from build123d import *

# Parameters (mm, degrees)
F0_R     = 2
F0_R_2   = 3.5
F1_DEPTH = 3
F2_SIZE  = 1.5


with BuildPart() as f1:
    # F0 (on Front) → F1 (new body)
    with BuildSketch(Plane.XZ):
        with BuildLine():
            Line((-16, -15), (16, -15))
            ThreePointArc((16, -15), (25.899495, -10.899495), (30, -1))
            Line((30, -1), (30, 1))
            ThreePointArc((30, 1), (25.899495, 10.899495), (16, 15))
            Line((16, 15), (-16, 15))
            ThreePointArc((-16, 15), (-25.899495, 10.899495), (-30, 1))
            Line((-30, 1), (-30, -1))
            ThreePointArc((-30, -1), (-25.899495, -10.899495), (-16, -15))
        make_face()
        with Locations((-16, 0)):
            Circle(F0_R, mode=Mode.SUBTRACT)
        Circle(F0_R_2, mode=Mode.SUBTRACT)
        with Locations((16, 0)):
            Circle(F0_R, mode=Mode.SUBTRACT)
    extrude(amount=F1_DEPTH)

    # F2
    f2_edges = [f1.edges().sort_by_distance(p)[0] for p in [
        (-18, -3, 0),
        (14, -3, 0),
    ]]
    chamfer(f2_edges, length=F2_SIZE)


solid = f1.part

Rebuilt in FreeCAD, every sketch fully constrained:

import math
import FreeCAD as App
import Part
import Sketcher

V = App.Vector


def edges_at(feature, points):
    """Names of the edges that pass closest to the given points."""
    edges = feature.Shape.Edges
    near = lambda p: min(range(len(edges)), key=lambda i: edges[i].distToShape(Part.Vertex(*p))[0])
    return sorted({f"Edge{near(p) + 1}" for p in points})

doc = App.newDocument("Part")
body = doc.addObject("PartDesign::Body", "Body")

# Sketch on XZ plane
sketch1 = body.newObject("Sketcher::SketchObject", "Sketch")
sketch1.AttachmentSupport = (doc.getObject("XZ_Plane"), [""])
sketch1.MapMode = "FlatFace"
sketch1.addGeometry([
    Part.LineSegment(V(-16, -15, 0), V(16, -15, 0)),  # 0
    Part.ArcOfCircle(Part.Circle(V(16, -1, 0), V(0, 0, 1), 14), math.radians(-90), math.radians(0)),  # 1
    Part.LineSegment(V(30, -1, 0), V(30, 1, 0)),  # 2
    Part.ArcOfCircle(Part.Circle(V(16, 1, 0), V(0, 0, 1), 14), math.radians(0), math.radians(90)),  # 3
    Part.LineSegment(V(16, 15, 0), V(-16, 15, 0)),  # 4
    Part.ArcOfCircle(Part.Circle(V(-16, 1, 0), V(0, 0, 1), 14), math.radians(90), math.radians(180)),  # 5
    Part.LineSegment(V(-30, 1, 0), V(-30, -1, 0)),  # 6
    Part.ArcOfCircle(Part.Circle(V(-16, -1, 0), V(0, 0, 1), 14), math.radians(180), math.radians(270)),  # 7
    Part.Circle(V(-16, 0, 0), V(0, 0, 1), 2),  # 8
    Part.Circle(V(0, 0, 0), V(0, 0, 1), 3.5),  # 9
    Part.Circle(V(16, 0, 0), V(0, 0, 1), 2),  # 10
], False)
sketch1.addConstraint([
    Sketcher.Constraint("Tangent", 0, 2, 1, 1),
    Sketcher.Constraint("Tangent", 1, 2, 2, 1),
    Sketcher.Constraint("Tangent", 2, 2, 3, 1),
    Sketcher.Constraint("Tangent", 3, 2, 4, 1),
    Sketcher.Constraint("Tangent", 4, 2, 5, 1),
    Sketcher.Constraint("Tangent", 5, 2, 6, 1),
    Sketcher.Constraint("Tangent", 6, 2, 7, 1),
    Sketcher.Constraint("Tangent", 7, 2, 0, 1),
    Sketcher.Constraint("Horizontal", 0),
    Sketcher.Constraint("Vertical", 2),
    Sketcher.Constraint("Horizontal", 4),
    Sketcher.Constraint("Vertical", 6),
    Sketcher.Constraint("Coincident", 9, 3, -1, 1),
    Sketcher.Constraint("Equal", 1, 3),
    Sketcher.Constraint("Equal", 3, 5),
    Sketcher.Constraint("Equal", 5, 7),
    Sketcher.Constraint("Equal", 8, 10),
    Sketcher.Constraint("Symmetric", 1, 3, 5, 3, -1, 1),
    Sketcher.Constraint("Symmetric", 8, 3, 10, 3, -1, 1),
    Sketcher.Constraint("PointOnObject", 8, 3, -1),
    Sketcher.Constraint("Vertical", 7, 3, 8, 3),
    Sketcher.Constraint("Diameter", 8, 4.0),
    Sketcher.Constraint("Diameter", 9, 7.0),
    Sketcher.Constraint("Radius", 1, 14.0),
    Sketcher.Constraint("DistanceX", 0, 1, 0, 2, 32.0),
    Sketcher.Constraint("DistanceY", 2, 1, 2, 2, 2.0),
])
pad1 = body.newObject("PartDesign::Pad", "Pad")
pad1.Profile = sketch1
pad1.Length = 3
doc.recompute()

chamfer = body.newObject("PartDesign::Chamfer", "Chamfer")
chamfer.Base = (pad1, edges_at(pad1, [(-18, -3, 0), (14, -3, 0)]))
chamfer.Size = 1.5

doc.recompute()
